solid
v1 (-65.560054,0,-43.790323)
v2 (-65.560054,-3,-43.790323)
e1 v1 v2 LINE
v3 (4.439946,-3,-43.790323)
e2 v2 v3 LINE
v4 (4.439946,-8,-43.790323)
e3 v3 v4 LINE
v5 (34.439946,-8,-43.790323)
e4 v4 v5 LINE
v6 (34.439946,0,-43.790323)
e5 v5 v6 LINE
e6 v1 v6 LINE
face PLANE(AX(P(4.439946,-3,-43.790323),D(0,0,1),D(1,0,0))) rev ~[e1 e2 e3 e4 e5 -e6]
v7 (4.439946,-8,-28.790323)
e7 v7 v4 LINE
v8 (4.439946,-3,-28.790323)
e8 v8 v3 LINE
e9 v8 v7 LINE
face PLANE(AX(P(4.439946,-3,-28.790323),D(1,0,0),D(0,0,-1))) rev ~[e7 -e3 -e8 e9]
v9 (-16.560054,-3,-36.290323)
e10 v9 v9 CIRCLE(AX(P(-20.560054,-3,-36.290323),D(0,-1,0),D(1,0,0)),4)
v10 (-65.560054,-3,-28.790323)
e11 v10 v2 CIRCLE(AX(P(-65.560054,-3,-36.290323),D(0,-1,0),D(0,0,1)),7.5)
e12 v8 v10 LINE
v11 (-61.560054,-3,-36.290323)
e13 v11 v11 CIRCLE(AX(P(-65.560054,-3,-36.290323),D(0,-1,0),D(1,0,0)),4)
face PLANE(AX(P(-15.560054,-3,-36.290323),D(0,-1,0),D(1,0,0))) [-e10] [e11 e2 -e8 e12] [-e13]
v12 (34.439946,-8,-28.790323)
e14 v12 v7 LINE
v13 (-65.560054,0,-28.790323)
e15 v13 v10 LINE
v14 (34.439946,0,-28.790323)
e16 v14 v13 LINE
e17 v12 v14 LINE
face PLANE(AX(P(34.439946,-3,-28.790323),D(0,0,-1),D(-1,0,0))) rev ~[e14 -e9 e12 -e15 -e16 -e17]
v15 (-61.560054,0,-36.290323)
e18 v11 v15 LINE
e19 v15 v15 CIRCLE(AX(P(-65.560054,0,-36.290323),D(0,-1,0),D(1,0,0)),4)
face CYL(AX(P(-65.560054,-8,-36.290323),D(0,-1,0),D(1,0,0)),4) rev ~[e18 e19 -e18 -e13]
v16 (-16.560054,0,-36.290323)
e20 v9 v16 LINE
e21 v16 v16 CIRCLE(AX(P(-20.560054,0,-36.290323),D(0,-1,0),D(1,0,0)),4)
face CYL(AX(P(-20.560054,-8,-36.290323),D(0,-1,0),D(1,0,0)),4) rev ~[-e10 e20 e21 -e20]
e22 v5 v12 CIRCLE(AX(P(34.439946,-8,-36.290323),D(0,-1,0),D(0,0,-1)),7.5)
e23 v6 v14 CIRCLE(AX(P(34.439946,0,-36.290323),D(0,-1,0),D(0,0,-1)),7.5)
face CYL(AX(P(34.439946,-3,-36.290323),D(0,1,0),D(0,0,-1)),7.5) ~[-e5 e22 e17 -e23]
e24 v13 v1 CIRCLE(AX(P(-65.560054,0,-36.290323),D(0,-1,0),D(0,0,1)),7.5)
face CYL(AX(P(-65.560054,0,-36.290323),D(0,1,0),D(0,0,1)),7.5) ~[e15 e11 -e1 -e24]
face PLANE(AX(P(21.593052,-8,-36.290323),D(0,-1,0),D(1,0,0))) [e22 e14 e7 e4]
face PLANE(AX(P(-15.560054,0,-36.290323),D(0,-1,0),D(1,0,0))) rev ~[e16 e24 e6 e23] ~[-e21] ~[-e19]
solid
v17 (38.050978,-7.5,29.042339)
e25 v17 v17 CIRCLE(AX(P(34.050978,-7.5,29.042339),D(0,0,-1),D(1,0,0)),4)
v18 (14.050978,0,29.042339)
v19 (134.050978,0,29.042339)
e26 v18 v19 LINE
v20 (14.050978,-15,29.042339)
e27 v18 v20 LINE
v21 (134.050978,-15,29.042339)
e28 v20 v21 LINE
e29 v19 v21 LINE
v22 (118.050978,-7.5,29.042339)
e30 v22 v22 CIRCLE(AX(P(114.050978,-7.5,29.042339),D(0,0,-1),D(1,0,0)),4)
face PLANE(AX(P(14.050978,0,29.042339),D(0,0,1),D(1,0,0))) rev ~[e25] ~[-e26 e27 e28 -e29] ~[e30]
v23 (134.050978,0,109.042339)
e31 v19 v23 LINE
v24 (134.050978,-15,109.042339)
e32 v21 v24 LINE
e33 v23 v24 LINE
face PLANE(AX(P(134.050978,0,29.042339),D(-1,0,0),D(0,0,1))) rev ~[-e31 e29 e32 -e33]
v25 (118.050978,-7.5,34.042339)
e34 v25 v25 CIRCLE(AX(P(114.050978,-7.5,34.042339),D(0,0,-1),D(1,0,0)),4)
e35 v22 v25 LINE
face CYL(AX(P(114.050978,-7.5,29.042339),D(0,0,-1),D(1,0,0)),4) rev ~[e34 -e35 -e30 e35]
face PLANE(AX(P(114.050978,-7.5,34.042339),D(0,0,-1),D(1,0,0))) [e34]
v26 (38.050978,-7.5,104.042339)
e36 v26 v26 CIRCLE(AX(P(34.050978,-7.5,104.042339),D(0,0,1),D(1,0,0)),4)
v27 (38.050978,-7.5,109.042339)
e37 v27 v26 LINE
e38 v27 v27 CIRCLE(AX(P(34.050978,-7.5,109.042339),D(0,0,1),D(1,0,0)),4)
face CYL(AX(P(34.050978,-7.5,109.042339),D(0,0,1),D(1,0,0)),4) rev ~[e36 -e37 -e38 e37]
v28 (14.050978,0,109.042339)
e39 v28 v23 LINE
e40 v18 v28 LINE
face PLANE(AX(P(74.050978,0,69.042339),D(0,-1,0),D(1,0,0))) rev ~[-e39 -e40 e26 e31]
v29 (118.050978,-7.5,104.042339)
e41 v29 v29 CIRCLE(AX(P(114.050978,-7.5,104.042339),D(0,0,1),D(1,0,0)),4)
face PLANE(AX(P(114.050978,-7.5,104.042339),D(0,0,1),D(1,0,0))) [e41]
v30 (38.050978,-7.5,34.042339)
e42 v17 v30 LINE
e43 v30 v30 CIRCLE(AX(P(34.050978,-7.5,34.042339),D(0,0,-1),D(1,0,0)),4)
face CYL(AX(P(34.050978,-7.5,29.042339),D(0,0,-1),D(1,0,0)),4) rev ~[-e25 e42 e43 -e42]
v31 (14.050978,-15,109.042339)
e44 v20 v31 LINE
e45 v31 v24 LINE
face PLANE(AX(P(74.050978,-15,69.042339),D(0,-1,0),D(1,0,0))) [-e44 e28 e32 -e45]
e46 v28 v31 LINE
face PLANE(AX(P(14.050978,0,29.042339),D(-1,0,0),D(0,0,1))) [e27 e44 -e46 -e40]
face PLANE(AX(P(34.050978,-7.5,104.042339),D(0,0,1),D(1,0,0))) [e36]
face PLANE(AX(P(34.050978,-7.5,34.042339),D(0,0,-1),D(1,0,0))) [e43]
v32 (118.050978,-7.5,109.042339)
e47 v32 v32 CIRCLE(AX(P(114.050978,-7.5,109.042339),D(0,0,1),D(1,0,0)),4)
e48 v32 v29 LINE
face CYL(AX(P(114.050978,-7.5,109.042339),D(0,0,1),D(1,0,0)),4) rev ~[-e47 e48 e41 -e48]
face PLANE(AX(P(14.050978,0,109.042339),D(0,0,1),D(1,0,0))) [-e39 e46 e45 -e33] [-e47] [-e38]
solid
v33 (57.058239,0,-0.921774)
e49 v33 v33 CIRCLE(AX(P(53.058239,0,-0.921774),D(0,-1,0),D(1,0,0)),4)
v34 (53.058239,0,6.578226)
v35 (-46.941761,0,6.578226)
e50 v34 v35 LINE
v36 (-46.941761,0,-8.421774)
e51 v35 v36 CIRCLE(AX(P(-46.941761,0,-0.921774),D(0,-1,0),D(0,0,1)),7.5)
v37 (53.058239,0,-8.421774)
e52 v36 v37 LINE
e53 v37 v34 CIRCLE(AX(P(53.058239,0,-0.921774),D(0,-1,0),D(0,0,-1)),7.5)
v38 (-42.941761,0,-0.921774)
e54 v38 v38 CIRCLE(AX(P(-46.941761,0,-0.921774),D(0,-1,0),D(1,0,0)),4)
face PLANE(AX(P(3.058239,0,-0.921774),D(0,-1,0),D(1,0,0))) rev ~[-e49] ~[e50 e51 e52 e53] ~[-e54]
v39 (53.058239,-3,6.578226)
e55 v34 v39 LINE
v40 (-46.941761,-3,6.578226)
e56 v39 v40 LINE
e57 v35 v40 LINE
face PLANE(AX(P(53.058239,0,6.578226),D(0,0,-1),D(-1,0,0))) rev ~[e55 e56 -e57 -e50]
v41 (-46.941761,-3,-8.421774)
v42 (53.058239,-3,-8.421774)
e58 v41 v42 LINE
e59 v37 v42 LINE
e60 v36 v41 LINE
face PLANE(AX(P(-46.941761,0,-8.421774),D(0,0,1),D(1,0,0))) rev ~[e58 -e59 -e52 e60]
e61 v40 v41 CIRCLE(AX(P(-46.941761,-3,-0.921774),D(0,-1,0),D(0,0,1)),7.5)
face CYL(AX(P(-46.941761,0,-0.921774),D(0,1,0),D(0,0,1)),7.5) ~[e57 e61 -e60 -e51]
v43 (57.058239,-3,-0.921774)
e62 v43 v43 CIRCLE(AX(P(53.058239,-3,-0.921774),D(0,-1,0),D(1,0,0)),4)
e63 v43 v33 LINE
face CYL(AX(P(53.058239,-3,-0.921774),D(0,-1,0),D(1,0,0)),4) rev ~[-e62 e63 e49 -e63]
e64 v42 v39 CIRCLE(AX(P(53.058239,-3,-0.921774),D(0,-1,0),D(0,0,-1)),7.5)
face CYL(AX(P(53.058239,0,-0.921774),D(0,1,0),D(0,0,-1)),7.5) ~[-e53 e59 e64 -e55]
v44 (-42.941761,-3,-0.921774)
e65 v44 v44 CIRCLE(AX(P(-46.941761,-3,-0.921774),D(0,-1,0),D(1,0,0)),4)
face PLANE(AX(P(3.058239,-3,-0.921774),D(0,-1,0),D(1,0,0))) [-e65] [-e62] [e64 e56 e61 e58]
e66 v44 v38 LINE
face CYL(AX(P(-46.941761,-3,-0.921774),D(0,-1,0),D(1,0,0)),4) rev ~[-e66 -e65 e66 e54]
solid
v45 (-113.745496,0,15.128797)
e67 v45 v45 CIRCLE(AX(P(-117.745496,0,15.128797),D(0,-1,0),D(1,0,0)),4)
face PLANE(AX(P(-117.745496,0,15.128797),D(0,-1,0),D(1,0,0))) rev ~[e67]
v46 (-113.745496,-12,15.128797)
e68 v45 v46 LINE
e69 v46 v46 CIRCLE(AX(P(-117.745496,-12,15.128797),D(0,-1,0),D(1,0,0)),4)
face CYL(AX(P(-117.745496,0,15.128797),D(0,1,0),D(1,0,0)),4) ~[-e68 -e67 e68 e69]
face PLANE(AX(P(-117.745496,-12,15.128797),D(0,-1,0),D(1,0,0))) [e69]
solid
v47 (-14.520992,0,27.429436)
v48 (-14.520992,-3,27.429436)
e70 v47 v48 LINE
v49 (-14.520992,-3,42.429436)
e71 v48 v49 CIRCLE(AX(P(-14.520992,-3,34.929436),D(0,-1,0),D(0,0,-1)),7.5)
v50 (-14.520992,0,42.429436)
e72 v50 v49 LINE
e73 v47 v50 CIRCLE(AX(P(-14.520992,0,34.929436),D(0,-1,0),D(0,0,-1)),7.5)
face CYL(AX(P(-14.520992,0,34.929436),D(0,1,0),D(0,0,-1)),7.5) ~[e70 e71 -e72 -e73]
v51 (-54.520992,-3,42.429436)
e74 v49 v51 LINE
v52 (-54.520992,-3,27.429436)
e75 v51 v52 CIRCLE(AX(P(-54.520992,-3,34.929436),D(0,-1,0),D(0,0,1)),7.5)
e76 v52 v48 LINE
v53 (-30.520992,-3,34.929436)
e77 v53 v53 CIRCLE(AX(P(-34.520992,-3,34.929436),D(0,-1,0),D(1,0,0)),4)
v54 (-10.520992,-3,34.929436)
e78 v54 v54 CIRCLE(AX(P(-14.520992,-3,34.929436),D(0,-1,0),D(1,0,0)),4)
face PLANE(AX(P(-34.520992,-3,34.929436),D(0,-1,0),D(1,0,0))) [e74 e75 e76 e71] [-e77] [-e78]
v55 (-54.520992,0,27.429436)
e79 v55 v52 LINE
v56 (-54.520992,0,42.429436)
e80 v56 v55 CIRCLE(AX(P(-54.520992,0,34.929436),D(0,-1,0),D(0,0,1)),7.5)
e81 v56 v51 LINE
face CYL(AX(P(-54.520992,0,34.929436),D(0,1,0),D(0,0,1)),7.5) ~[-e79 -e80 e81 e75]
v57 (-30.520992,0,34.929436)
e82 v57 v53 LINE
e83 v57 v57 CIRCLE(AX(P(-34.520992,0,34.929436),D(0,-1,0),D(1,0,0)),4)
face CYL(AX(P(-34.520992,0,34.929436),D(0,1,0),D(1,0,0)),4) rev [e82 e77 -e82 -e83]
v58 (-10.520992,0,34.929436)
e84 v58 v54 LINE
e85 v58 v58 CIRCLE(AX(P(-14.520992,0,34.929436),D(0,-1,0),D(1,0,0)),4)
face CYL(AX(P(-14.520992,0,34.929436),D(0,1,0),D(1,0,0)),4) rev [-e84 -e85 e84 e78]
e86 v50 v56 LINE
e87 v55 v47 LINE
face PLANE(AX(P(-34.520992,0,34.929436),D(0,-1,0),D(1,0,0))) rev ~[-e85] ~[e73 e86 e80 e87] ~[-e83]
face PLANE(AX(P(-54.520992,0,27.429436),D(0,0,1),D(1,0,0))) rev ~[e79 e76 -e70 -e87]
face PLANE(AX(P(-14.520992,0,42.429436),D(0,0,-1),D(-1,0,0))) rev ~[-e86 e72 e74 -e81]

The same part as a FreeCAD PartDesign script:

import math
import FreeCAD as App
import Part
import Sketcher
from FreeCAD import Vector
Q = App.Units.Quantity

doc = App.newDocument("Part")
body = doc.addObject("PartDesign::Body", "Body")

# Sketch on XZ plane
sketch1 = doc.addObject("Sketcher::SketchObject", "Sketch")
body.addObject(sketch1)
sketch1.AttachmentSupport = (doc.XZ_Plane, [""])
sketch1.MapMode = "FlatFace"
sketch1.addGeometry(Part.LineSegment(Vector(53.058239, 6.578226, 0), Vector(-46.941761, 6.578226, 0)), False)
sketch1.addGeometry(Part.ArcOfCircle(Part.Circle(Vector(-46.941761, -0.921774, 0), Vector(0, 0, 1), 7.5), math.radians(90), math.radians(270)), False)
sketch1.addGeometry(Part.LineSegment(Vector(-46.941761, -8.421774, 0), Vector(53.058239, -8.421774, 0)), False)
sketch1.addGeometry(Part.ArcOfCircle(Part.Circle(Vector(53.058239, -0.921774, 0), Vector(0, 0, 1), 7.5), math.radians(-90), math.radians(90)), False)
sketch1.addConstraint(Sketcher.Constraint("Tangent", 0, 2, 1, 1))
sketch1.addConstraint(Sketcher.Constraint("Tangent", 1, 2, 2, 1))
sketch1.addConstraint(Sketcher.Constraint("Tangent", 2, 2, 3, 1))
sketch1.addConstraint(Sketcher.Constraint("Tangent", 3, 2, 0, 1))
sketch1.addConstraint(Sketcher.Constraint("Horizontal", 0))
sketch1.addConstraint(Sketcher.Constraint("Horizontal", 2))
sketch1.addConstraint(Sketcher.Constraint("Radius", 1, Q("7.5 mm")))
sketch1.addConstraint(Sketcher.Constraint("DistanceX", 0, 2, 0, 1, Q("100 mm")))
sketch1.addConstraint(Sketcher.Constraint("DistanceX", 1, 3, -1, 1, Q("46.941761 mm")))
sketch1.addConstraint(Sketcher.Constraint("DistanceY", 1, 3, -1, 1, Q("0.921774 mm")))
pad1 = doc.addObject("PartDesign::Pad", "Pad")
body.addObject(pad1)
pad1.Profile = sketch1
pad1.Length = 3

# Sketch on XZ plane
sketch2 = doc.addObject("Sketcher::SketchObject", "Sketch001")
body.addObject(sketch2)
sketch2.AttachmentSupport = (doc.XZ_Plane, [""])
sketch2.MapMode = "FlatFace"
sketch2.AttachmentOffset = App.Placement(Vector(0, 0, 3), App.Rotation())
sketch2.addGeometry(Part.Circle(Vector(53.058239, -0.921774, 0), Vector(0, 0, 1), 4), False)
sketch2.addGeometry(Part.Circle(Vector(-46.941761, -0.921774, 0), Vector(0, 0, 1), 4), False)
sketch2.addConstraint(Sketcher.Constraint("Equal", 0, 1))
sketch2.addConstraint(Sketcher.Constraint("Horizontal", 0, 3, 1, 3))
sketch2.addConstraint(Sketcher.Constraint("Diameter", 0, Q("8 mm")))
sketch2.addConstraint(Sketcher.Constraint("DistanceX", 1, 3, 0, 3, Q("100 mm")))
sketch2.addConstraint(Sketcher.Constraint("DistanceX", -1, 1, 0, 3, Q("53.058239 mm")))
sketch2.addConstraint(Sketcher.Constraint("DistanceY", 0, 3, -1, 1, Q("0.921774 mm")))
pocket1 = doc.addObject("PartDesign::Pocket", "Pocket")
body.addObject(pocket1)
pocket1.Profile = sketch2
pocket1.Length = 25
body2 = doc.addObject("PartDesign::Body", "Body001")

# Sketch on XZ plane
sketch3 = doc.addObject("Sketcher::SketchObject", "Sketch002")
body2.addObject(sketch3)
sketch3.AttachmentSupport = (doc.getObject("XZ_Plane001"), [""])
sketch3.MapMode = "FlatFace"
sketch3.addGeometry(Part.LineSegment(Vector(34.439946, -28.790323, 0), Vector(-65.560054, -28.790323, 0)), False)
sketch3.addGeometry(Part.ArcOfCircle(Part.Circle(Vector(-65.560054, -36.290323, 0), Vector(0, 0, 1), 7.5), math.radians(90), math.radians(270)), False)
sketch3.addGeometry(Part.LineSegment(Vector(-65.560054, -43.790323, 0), Vector(34.439946, -43.790323, 0)), False)
sketch3.addGeometry(Part.ArcOfCircle(Part.Circle(Vector(34.439946, -36.290323, 0), Vector(0, 0, 1), 7.5), math.radians(-90), math.radians(90)), False)
sketch3.addConstraint(Sketcher.Constraint("Tangent", 0, 2, 1, 1))
sketch3.addConstraint(Sketcher.Constraint("Tangent", 1, 2, 2, 1))
sketch3.addConstraint(Sketcher.Constraint("Tangent", 2, 2, 3, 1))
sketch3.addConstraint(Sketcher.Constraint("Tangent", 3, 2, 0, 1))
sketch3.addConstraint(Sketcher.Constraint("Horizontal", 0))
sketch3.addConstraint(Sketcher.Constraint("Horizontal", 2))
sketch3.addConstraint(Sketcher.Constraint("Radius", 1, Q("7.5 mm")))
sketch3.addConstraint(Sketcher.Constraint("DistanceX", 0, 2, 0, 1, Q("100 mm")))
sketch3.addConstraint(Sketcher.Constraint("DistanceX", 1, 3, -1, 1, Q("65.560054 mm")))
sketch3.addConstraint(Sketcher.Constraint("DistanceY", 1, 3, -1, 1, Q("36.290323 mm")))
pad2 = doc.addObject("PartDesign::Pad", "Pad001")
body2.addObject(pad2)
pad2.Profile = sketch3
pad2.Length = 3

# Sketch on XZ plane
sketch4 = doc.addObject("Sketcher::SketchObject", "Sketch003")
body2.addObject(sketch4)
sketch4.AttachmentSupport = (doc.getObject("XZ_Plane001"), [""])
sketch4.MapMode = "FlatFace"
sketch4.AttachmentOffset = App.Placement(Vector(0, 0, 3), App.Rotation())
sketch4.addGeometry(Part.LineSegment(Vector(34.439946, -28.790323, 0), Vector(4.439946, -28.790323, 0)), False)
sketch4.addGeometry(Part.LineSegment(Vector(4.439946, -28.790323, 0), Vector(4.439946, -43.790323, 0)), False)
sketch4.addGeometry(Part.LineSegment(Vector(4.439946, -43.790323, 0), Vector(34.439946, -43.790323, 0)), False)
sketch4.addGeometry(Part.ArcOfCircle(Part.Circle(Vector(34.439946, -36.290323, 0), Vector(0, 0, 1), 7.5), math.radians(-90), math.radians(90)), False)
sketch4.addConstraint(Sketcher.Constraint("Coincident", 0, 2, 1, 1))
sketch4.addConstraint(Sketcher.Constraint("Coincident", 1, 2, 2, 1))
sketch4.addConstraint(Sketcher.Constraint("Tangent", 2, 2, 3, 1))
sketch4.addConstraint(Sketcher.Constraint("Tangent", 3, 2, 0, 1))
sketch4.addConstraint(Sketcher.Constraint("Horizontal", 0))
sketch4.addConstraint(Sketcher.Constraint("Vertical", 1))
sketch4.addConstraint(Sketcher.Constraint("Horizontal", 2))
sketch4.addConstraint(Sketcher.Constraint("Radius", 3, Q("7.5 mm")))
sketch4.addConstraint(Sketcher.Constraint("DistanceX", 0, 2, 0, 1, Q("30 mm")))
sketch4.addConstraint(Sketcher.Constraint("DistanceX", -1, 1, 3, 3, Q("34.439946 mm")))
sketch4.addConstraint(Sketcher.Constraint("DistanceY", 3, 3, -1, 1, Q("36.290323 mm")))
pad3 = doc.addObject("PartDesign::Pad", "Pad002")
body2.addObject(pad3)
pad3.Profile = sketch4
pad3.Length = 5

# Sketch on XZ plane
sketch5 = doc.addObject("Sketcher::SketchObject", "Sketch004")
body2.addObject(sketch5)
sketch5.AttachmentSupport = (doc.getObject("XZ_Plane001"), [""])
sketch5.MapMode = "FlatFace"
sketch5.AttachmentOffset = App.Placement(Vector(0, 0, 8), App.Rotation())
sketch5.addGeometry(Part.Circle(Vector(-65.560054, -36.290323, 0), Vector(0, 0, 1), 4), False)
sketch5.addGeometry(Part.Circle(Vector(-20.560054, -36.290323, 0), Vector(0, 0, 1), 4), False)
sketch5.addConstraint(Sketcher.Constraint("Equal", 0, 1))
sketch5.addConstraint(Sketcher.Constraint("Horizontal", 0, 3, 1, 3))
sketch5.addConstraint(Sketcher.Constraint("Diameter", 0, Q("8 mm")))
sketch5.addConstraint(Sketcher.Constraint("DistanceX", 0, 3, 1, 3, Q("45 mm")))
sketch5.addConstraint(Sketcher.Constraint("DistanceX", 0, 3, -1, 1, Q("65.560054 mm")))
sketch5.addConstraint(Sketcher.Constraint("DistanceY", 0, 3, -1, 1, Q("36.290323 mm")))
pocket2 = doc.addObject("PartDesign::Pocket", "Pocket001")
body2.addObject(pocket2)
pocket2.Profile = sketch5
pocket2.Length = 25
body3 = doc.addObject("PartDesign::Body", "Body002")

# Sketch on XZ plane
sketch6 = doc.addObject("Sketcher::SketchObject", "Sketch005")
body3.addObject(sketch6)
sketch6.AttachmentSupport = (doc.getObject("XZ_Plane002"), [""])
sketch6.MapMode = "FlatFace"
sketch6.addGeometry(Part.LineSegment(Vector(-14.520992, 42.429436, 0), Vector(-54.520992, 42.429436, 0)), False)
sketch6.addGeometry(Part.ArcOfCircle(Part.Circle(Vector(-54.520992, 34.929436, 0), Vector(0, 0, 1), 7.5), math.radians(90), math.radians(270)), False)
sketch6.addGeometry(Part.LineSegment(Vector(-54.520992, 27.429436, 0), Vector(-14.520992, 27.429436, 0)), False)
sketch6.addGeometry(Part.ArcOfCircle(Part.Circle(Vector(-14.520992, 34.929436, 0), Vector(0, 0, 1), 7.5), math.radians(-90), math.radians(90)), False)
sketch6.addGeometry(Part.Circle(Vector(-34.520992, 34.929436, 0), Vector(0, 0, 1), 4), False)
sketch6.addGeometry(Part.Circle(Vector(-14.520992, 34.929436, 0), Vector(0, 0, 1), 4), False)
sketch6.addConstraint(Sketcher.Constraint("Tangent", 0, 2, 1, 1))
sketch6.addConstraint(Sketcher.Constraint("Tangent", 1, 2, 2, 1))
sketch6.addConstraint(Sketcher.Constraint("Tangent", 2, 2, 3, 1))
sketch6.addConstraint(Sketcher.Constraint("Tangent", 3, 2, 0, 1))
sketch6.addConstraint(Sketcher.Constraint("Horizontal", 0))
sketch6.addConstraint(Sketcher.Constraint("Horizontal", 2))
sketch6.addConstraint(Sketcher.Constraint("Coincident", 5, 3, 3, 3))
sketch6.addConstraint(Sketcher.Constraint("Equal", 4, 5))
sketch6.addConstraint(Sketcher.Constraint("Horizontal", 3, 3, 4, 3))
sketch6.addConstraint(Sketcher.Constraint("Diameter", 4, Q("8 mm")))
sketch6.addConstraint(Sketcher.Constraint("Radius", 1, Q("7.5 mm")))
sketch6.addConstraint(Sketcher.Constraint("DistanceX", 0, 2, 0, 1, Q("40 mm")))
sketch6.addConstraint(Sketcher.Constraint("DistanceX", 1, 3, 4, 3, Q("20 mm")))
sketch6.addConstraint(Sketcher.Constraint("DistanceX", 1, 3, -1, 1, Q("54.520992 mm")))
sketch6.addConstraint(Sketcher.Constraint("DistanceY", -1, 1, 1, 3, Q("34.929436 mm")))
pad4 = doc.addObject("PartDesign::Pad", "Pad003")
body3.addObject(pad4)
pad4.Profile = sketch6
pad4.Length = 3
body4 = doc.addObject("PartDesign::Body", "Body003")

# Sketch on XZ plane
sketch7 = doc.addObject("Sketcher::SketchObject", "Sketch006")
body4.addObject(sketch7)
sketch7.AttachmentSupport = (doc.getObject("XZ_Plane003"), [""])
sketch7.MapMode = "FlatFace"
sketch7.addGeometry(Part.LineSegment(Vector(14.050978, 109.042339, 0), Vector(14.050978, 29.042339, 0)), False)
sketch7.addGeometry(Part.LineSegment(Vector(14.050978, 29.042339, 0), Vector(134.050978, 29.042339, 0)), False)
sketch7.addGeometry(Part.LineSegment(Vector(134.050978, 29.042339, 0), Vector(134.050978, 109.042339, 0)), False)
sketch7.addGeometry(Part.LineSegment(Vector(134.050978, 109.042339, 0), Vector(14.050978, 109.042339, 0)), False)
sketch7.addConstraint(Sketcher.Constraint("Coincident", 0, 2, 1, 1))
sketch7.addConstraint(Sketcher.Constraint("Coincident", 1, 2, 2, 1))
sketch7.addConstraint(Sketcher.Constraint("Coincident", 2, 2, 3, 1))
sketch7.addConstraint(Sketcher.Constraint("Coincident", 3, 2, 0, 1))
sketch7.addConstraint(Sketcher.Constraint("Vertical", 0))
sketch7.addConstraint(Sketcher.Constraint("Horizontal", 1))
sketch7.addConstraint(Sketcher.Constraint("Vertical", 2))
sketch7.addConstraint(Sketcher.Constraint("Horizontal", 3))
sketch7.addConstraint(Sketcher.Constraint("DistanceX", 1, 1, 1, 2, Q("120 mm")))
sketch7.addConstraint(Sketcher.Constraint("DistanceY", 0, 2, 0, 1, Q("80 mm")))
sketch7.addConstraint(Sketcher.Constraint("DistanceX", -1, 1, 0, 2, Q("14.050978 mm")))
sketch7.addConstraint(Sketcher.Constraint("DistanceY", -1, 1, 0, 2, Q("29.042339 mm")))
pad5 = doc.addObject("PartDesign::Pad", "Pad004")
body4.addObject(pad5)
pad5.Profile = sketch7
pad5.Length = 15

# Sketch on XY plane
sketch8 = doc.addObject("Sketcher::SketchObject", "Sketch007")
body4.addObject(sketch8)
sketch8.AttachmentSupport = (doc.getObject("XY_Plane003"), [""])
sketch8.MapMode = "FlatFace"
sketch8.AttachmentOffset = App.Placement(Vector(0, 0, 29.042339), App.Rotation())
sketch8.addGeometry(Part.Circle(Vector(34.050978, -7.5, 0), Vector(0, 0, 1), 4), False)
sketch8.addGeometry(Part.Circle(Vector(114.050978, -7.5, 0), Vector(0, 0, 1), 4), False)
sketch8.addConstraint(Sketcher.Constraint("Equal", 0, 1))
sketch8.addConstraint(Sketcher.Constraint("Horizontal", 0, 3, 1, 3))
sketch8.addConstraint(Sketcher.Constraint("Diameter", 0, Q("8 mm")))
sketch8.addConstraint(Sketcher.Constraint("DistanceX", 0, 3, 1, 3, Q("80 mm")))
sketch8.addConstraint(Sketcher.Constraint("DistanceY", 0, 3, -1, 1, Q("7.5 mm")))
sketch8.addConstraint(Sketcher.Constraint("DistanceX", -1, 1, 1, 3, Q("114.050978 mm")))
pocket3 = doc.addObject("PartDesign::Pocket", "Pocket002")
body4.addObject(pocket3)
pocket3.Profile = sketch8
pocket3.Length = 5
pocket3.Reversed = True

# Sketch on XY plane
sketch9 = doc.addObject("Sketcher::SketchObject", "Sketch008")
body4.addObject(sketch9)
sketch9.AttachmentSupport = (doc.getObject("XY_Plane003"), [""])
sketch9.MapMode = "FlatFace"
sketch9.AttachmentOffset = App.Placement(Vector(0, 0, 109.042339), App.Rotation())
sketch9.addGeometry(Part.Circle(Vector(34.050978, -7.5, 0), Vector(0, 0, 1), 4), False)
sketch9.addGeometry(Part.Circle(Vector(114.050978, -7.5, 0), Vector(0, 0, 1), 4), False)
sketch9.addConstraint(Sketcher.Constraint("Equal", 0, 1))
sketch9.addConstraint(Sketcher.Constraint("Horizontal", 0, 3, 1, 3))
sketch9.addConstraint(Sketcher.Constraint("Diameter", 0, Q("8 mm")))
sketch9.addConstraint(Sketcher.Constraint("DistanceX", 0, 3, 1, 3, Q("80 mm")))
sketch9.addConstraint(Sketcher.Constraint("DistanceY", 0, 3, -1, 1, Q("7.5 mm")))
sketch9.addConstraint(Sketcher.Constraint("DistanceX", -1, 1, 1, 3, Q("114.050978 mm")))
pocket4 = doc.addObject("PartDesign::Pocket", "Pocket003")
body4.addObject(pocket4)
pocket4.Profile = sketch9
pocket4.Length = 5
body5 = doc.addObject("PartDesign::Body", "Body004")

# Sketch on XZ plane
sketch10 = doc.addObject("Sketcher::SketchObject", "Sketch009")
body5.addObject(sketch10)
sketch10.AttachmentSupport = (doc.getObject("XZ_Plane004"), [""])
sketch10.MapMode = "FlatFace"
sketch10.addGeometry(Part.Circle(Vector(-117.745496, 15.128797, 0), Vector(0, 0, 1), 4), False)
sketch10.addConstraint(Sketcher.Constraint("Diameter", 0, Q("8 mm")))
sketch10.addConstraint(Sketcher.Constraint("DistanceX", 0, 3, -1, 1, Q("117.745496 mm")))
sketch10.addConstraint(Sketcher.Constraint("DistanceY", -1, 1, 0, 3, Q("15.128797 mm")))
pad6 = doc.addObject("PartDesign::Pad", "Pad005")
body5.addObject(pad6)
pad6.Profile = sketch10
pad6.Length = 12

doc.recompute()
